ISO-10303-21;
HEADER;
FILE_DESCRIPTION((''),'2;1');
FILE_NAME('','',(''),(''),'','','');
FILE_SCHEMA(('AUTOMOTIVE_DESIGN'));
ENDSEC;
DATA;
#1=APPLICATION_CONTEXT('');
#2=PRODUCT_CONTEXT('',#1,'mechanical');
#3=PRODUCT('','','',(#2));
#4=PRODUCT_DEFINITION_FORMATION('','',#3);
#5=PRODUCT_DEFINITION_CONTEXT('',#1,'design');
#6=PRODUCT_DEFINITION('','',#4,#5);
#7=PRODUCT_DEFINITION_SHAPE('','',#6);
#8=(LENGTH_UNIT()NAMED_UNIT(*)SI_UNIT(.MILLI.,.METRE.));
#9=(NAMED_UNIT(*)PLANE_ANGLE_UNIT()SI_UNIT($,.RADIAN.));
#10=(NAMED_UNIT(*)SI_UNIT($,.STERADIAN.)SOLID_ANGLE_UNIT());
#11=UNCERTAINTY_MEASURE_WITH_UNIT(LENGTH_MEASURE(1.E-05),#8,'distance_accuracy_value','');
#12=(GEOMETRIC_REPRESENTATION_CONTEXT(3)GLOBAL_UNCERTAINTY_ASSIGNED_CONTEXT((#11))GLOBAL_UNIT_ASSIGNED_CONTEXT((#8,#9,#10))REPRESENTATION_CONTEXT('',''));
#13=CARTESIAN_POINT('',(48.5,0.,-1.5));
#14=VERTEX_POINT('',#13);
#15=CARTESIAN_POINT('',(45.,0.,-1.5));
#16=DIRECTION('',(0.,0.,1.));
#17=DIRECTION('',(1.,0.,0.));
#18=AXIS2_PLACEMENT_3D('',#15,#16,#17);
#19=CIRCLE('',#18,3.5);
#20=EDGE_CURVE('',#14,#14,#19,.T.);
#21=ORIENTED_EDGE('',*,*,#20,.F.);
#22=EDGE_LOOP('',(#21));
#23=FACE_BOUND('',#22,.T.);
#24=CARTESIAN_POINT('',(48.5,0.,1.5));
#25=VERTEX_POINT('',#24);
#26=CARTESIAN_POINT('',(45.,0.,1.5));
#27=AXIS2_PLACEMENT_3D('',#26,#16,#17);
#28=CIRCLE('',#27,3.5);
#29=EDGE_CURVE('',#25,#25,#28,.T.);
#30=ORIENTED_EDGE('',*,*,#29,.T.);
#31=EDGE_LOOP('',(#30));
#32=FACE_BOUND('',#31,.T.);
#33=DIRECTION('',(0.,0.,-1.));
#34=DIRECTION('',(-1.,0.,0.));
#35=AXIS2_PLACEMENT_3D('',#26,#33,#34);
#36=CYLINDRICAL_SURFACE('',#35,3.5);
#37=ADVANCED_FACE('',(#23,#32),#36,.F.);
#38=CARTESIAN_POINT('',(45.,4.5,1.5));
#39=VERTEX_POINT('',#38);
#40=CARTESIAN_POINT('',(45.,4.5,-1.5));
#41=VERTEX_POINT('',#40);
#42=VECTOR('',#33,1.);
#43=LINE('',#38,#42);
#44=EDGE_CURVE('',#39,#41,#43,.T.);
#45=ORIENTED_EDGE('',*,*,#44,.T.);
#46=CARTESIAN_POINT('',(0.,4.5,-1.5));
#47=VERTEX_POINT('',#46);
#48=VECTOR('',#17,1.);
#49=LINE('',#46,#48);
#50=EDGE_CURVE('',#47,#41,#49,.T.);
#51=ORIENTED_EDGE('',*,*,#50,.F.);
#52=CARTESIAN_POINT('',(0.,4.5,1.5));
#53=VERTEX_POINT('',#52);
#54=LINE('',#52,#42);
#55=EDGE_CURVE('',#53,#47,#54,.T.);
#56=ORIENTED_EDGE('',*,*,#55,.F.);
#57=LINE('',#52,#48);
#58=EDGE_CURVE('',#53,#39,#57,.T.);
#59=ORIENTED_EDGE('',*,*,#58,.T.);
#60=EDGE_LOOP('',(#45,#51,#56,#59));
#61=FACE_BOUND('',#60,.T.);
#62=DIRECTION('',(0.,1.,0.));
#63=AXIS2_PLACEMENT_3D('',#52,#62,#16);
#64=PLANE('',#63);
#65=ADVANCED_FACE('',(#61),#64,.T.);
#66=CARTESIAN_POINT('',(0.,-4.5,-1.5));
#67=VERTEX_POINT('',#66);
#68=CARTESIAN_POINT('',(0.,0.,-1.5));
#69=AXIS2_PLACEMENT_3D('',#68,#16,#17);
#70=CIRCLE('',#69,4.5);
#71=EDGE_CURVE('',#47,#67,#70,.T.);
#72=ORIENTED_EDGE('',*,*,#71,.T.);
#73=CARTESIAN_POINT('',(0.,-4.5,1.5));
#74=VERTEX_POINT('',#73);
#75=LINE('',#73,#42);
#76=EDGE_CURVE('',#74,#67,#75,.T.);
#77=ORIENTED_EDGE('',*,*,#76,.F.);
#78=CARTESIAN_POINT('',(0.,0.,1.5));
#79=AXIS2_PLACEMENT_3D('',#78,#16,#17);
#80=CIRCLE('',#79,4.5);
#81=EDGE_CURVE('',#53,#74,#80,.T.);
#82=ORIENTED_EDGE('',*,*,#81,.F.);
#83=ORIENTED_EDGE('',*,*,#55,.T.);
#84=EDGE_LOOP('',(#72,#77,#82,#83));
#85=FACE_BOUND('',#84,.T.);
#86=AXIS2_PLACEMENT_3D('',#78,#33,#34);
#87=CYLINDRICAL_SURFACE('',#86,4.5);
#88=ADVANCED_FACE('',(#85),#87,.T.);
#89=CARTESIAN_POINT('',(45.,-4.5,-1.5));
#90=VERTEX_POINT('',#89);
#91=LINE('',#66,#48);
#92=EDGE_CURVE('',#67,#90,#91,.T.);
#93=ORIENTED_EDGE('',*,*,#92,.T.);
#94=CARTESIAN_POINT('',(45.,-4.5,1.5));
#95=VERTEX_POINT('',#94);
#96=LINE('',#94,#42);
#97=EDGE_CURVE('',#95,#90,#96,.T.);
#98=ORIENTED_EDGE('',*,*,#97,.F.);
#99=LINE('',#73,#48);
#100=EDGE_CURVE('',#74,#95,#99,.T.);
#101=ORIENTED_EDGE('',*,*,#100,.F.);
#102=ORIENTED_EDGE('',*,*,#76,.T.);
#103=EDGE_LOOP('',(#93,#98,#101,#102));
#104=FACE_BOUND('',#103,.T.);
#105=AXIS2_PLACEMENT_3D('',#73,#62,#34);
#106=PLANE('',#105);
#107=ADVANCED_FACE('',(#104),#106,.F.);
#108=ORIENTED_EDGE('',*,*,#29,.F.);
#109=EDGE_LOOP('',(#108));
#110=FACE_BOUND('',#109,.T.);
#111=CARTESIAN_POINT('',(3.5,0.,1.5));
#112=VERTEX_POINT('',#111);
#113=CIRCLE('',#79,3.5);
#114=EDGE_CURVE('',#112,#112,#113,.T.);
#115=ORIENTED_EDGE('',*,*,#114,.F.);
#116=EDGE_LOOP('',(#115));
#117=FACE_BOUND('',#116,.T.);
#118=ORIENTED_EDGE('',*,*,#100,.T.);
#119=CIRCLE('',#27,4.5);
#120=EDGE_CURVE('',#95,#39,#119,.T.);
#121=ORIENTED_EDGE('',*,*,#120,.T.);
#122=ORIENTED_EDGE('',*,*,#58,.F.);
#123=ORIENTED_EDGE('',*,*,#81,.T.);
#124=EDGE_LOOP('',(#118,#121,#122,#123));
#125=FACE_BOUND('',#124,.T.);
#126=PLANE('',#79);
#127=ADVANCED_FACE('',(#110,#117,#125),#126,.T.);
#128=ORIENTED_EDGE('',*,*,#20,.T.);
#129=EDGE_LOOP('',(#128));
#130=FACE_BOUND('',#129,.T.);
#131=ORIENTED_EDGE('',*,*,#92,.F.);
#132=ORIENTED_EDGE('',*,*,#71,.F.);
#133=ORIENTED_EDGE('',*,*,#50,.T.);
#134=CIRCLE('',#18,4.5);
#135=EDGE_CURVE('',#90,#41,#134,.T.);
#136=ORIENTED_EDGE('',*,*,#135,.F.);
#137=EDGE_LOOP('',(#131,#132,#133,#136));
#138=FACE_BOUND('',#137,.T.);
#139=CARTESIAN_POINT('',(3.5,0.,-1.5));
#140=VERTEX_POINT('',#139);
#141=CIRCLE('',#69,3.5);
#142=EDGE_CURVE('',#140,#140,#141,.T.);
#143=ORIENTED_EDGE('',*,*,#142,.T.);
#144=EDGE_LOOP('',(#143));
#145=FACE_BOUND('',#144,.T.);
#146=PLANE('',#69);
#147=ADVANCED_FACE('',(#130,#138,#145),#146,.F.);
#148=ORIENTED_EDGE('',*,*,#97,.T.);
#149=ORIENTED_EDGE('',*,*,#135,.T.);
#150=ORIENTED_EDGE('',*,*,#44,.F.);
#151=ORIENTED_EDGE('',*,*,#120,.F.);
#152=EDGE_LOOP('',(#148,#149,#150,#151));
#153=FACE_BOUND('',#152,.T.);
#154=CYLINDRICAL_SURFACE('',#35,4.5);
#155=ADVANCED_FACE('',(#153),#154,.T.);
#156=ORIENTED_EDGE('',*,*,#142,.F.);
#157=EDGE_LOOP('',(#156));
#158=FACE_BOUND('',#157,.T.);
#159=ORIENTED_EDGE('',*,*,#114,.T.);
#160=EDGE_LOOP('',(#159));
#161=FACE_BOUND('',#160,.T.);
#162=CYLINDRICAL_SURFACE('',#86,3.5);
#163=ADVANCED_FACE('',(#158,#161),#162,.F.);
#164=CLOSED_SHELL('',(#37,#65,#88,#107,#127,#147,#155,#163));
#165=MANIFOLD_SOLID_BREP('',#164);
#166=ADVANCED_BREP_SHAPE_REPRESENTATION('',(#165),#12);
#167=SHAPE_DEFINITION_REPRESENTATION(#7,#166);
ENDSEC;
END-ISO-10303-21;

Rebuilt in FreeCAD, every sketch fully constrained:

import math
import FreeCAD as App
import Part
import Sketcher

V = App.Vector
Q = App.Units.Quantity

doc = App.newDocument("Part")
body = doc.addObject("PartDesign::Body", "Body")

sketch1 = body.newObject("Sketcher::SketchObject", "Sketch")
sketch1.AttachmentSupport = (doc.getObject("XY_Plane"), [""])
sketch1.MapMode = "FlatFace"
sketch1.addGeometry(Part.ArcOfCircle(Part.Circle(V(0, 0, 0), V(0, 0, 1), 4.5), math.radians(90), math.radians(270)), False)
sketch1.addGeometry(Part.LineSegment(V(0, -4.5, 0), V(45, -4.5, 0)), False)
sketch1.addGeometry(Part.ArcOfCircle(Part.Circle(V(45, 0, 0), V(0, 0, 1), 4.5), math.radians(-90), math.radians(90)), False)
sketch1.addGeometry(Part.LineSegment(V(45, 4.5, 0), V(0, 4.5, 0)), False)
sketch1.addGeometry(Part.Circle(V(0, 0, 0), V(0, 0, 1), 3.5), False)
sketch1.addGeometry(Part.Circle(V(45, 0, 0), V(0, 0, 1), 3.5), False)
sketch1.addConstraint(Sketcher.Constraint("Tangent", 0, 2, 1, 1))
sketch1.addConstraint(Sketcher.Constraint("Tangent", 1, 2, 2, 1))
sketch1.addConstraint(Sketcher.Constraint("Tangent", 2, 2, 3, 1))
sketch1.addConstraint(Sketcher.Constraint("Tangent", 3, 2, 0, 1))
sketch1.addConstraint(Sketcher.Constraint("Horizontal", 1))
sketch1.addConstraint(Sketcher.Constraint("Horizontal", 3))
sketch1.addConstraint(Sketcher.Constraint("Coincident", 0, 3, -1, 1))
sketch1.addConstraint(Sketcher.Constraint("Coincident", 4, 3, -1, 1))
sketch1.addConstraint(Sketcher.Constraint("Coincident", 5, 3, 2, 3))
sketch1.addConstraint(Sketcher.Constraint("Equal", 4, 5))
sketch1.addConstraint(Sketcher.Constraint("Diameter", 4, Q("7 mm")))
sketch1.addConstraint(Sketcher.Constraint("Radius", 0, Q("4.5 mm")))
sketch1.addConstraint(Sketcher.Constraint("DistanceX", 1, 1, 1, 2, Q("45 mm")))
pad1 = body.newObject("PartDesign::Pad", "Pad")
pad1.Profile = sketch1
pad1.Length = 3
pad1.Midplane = True

doc.recompute()
